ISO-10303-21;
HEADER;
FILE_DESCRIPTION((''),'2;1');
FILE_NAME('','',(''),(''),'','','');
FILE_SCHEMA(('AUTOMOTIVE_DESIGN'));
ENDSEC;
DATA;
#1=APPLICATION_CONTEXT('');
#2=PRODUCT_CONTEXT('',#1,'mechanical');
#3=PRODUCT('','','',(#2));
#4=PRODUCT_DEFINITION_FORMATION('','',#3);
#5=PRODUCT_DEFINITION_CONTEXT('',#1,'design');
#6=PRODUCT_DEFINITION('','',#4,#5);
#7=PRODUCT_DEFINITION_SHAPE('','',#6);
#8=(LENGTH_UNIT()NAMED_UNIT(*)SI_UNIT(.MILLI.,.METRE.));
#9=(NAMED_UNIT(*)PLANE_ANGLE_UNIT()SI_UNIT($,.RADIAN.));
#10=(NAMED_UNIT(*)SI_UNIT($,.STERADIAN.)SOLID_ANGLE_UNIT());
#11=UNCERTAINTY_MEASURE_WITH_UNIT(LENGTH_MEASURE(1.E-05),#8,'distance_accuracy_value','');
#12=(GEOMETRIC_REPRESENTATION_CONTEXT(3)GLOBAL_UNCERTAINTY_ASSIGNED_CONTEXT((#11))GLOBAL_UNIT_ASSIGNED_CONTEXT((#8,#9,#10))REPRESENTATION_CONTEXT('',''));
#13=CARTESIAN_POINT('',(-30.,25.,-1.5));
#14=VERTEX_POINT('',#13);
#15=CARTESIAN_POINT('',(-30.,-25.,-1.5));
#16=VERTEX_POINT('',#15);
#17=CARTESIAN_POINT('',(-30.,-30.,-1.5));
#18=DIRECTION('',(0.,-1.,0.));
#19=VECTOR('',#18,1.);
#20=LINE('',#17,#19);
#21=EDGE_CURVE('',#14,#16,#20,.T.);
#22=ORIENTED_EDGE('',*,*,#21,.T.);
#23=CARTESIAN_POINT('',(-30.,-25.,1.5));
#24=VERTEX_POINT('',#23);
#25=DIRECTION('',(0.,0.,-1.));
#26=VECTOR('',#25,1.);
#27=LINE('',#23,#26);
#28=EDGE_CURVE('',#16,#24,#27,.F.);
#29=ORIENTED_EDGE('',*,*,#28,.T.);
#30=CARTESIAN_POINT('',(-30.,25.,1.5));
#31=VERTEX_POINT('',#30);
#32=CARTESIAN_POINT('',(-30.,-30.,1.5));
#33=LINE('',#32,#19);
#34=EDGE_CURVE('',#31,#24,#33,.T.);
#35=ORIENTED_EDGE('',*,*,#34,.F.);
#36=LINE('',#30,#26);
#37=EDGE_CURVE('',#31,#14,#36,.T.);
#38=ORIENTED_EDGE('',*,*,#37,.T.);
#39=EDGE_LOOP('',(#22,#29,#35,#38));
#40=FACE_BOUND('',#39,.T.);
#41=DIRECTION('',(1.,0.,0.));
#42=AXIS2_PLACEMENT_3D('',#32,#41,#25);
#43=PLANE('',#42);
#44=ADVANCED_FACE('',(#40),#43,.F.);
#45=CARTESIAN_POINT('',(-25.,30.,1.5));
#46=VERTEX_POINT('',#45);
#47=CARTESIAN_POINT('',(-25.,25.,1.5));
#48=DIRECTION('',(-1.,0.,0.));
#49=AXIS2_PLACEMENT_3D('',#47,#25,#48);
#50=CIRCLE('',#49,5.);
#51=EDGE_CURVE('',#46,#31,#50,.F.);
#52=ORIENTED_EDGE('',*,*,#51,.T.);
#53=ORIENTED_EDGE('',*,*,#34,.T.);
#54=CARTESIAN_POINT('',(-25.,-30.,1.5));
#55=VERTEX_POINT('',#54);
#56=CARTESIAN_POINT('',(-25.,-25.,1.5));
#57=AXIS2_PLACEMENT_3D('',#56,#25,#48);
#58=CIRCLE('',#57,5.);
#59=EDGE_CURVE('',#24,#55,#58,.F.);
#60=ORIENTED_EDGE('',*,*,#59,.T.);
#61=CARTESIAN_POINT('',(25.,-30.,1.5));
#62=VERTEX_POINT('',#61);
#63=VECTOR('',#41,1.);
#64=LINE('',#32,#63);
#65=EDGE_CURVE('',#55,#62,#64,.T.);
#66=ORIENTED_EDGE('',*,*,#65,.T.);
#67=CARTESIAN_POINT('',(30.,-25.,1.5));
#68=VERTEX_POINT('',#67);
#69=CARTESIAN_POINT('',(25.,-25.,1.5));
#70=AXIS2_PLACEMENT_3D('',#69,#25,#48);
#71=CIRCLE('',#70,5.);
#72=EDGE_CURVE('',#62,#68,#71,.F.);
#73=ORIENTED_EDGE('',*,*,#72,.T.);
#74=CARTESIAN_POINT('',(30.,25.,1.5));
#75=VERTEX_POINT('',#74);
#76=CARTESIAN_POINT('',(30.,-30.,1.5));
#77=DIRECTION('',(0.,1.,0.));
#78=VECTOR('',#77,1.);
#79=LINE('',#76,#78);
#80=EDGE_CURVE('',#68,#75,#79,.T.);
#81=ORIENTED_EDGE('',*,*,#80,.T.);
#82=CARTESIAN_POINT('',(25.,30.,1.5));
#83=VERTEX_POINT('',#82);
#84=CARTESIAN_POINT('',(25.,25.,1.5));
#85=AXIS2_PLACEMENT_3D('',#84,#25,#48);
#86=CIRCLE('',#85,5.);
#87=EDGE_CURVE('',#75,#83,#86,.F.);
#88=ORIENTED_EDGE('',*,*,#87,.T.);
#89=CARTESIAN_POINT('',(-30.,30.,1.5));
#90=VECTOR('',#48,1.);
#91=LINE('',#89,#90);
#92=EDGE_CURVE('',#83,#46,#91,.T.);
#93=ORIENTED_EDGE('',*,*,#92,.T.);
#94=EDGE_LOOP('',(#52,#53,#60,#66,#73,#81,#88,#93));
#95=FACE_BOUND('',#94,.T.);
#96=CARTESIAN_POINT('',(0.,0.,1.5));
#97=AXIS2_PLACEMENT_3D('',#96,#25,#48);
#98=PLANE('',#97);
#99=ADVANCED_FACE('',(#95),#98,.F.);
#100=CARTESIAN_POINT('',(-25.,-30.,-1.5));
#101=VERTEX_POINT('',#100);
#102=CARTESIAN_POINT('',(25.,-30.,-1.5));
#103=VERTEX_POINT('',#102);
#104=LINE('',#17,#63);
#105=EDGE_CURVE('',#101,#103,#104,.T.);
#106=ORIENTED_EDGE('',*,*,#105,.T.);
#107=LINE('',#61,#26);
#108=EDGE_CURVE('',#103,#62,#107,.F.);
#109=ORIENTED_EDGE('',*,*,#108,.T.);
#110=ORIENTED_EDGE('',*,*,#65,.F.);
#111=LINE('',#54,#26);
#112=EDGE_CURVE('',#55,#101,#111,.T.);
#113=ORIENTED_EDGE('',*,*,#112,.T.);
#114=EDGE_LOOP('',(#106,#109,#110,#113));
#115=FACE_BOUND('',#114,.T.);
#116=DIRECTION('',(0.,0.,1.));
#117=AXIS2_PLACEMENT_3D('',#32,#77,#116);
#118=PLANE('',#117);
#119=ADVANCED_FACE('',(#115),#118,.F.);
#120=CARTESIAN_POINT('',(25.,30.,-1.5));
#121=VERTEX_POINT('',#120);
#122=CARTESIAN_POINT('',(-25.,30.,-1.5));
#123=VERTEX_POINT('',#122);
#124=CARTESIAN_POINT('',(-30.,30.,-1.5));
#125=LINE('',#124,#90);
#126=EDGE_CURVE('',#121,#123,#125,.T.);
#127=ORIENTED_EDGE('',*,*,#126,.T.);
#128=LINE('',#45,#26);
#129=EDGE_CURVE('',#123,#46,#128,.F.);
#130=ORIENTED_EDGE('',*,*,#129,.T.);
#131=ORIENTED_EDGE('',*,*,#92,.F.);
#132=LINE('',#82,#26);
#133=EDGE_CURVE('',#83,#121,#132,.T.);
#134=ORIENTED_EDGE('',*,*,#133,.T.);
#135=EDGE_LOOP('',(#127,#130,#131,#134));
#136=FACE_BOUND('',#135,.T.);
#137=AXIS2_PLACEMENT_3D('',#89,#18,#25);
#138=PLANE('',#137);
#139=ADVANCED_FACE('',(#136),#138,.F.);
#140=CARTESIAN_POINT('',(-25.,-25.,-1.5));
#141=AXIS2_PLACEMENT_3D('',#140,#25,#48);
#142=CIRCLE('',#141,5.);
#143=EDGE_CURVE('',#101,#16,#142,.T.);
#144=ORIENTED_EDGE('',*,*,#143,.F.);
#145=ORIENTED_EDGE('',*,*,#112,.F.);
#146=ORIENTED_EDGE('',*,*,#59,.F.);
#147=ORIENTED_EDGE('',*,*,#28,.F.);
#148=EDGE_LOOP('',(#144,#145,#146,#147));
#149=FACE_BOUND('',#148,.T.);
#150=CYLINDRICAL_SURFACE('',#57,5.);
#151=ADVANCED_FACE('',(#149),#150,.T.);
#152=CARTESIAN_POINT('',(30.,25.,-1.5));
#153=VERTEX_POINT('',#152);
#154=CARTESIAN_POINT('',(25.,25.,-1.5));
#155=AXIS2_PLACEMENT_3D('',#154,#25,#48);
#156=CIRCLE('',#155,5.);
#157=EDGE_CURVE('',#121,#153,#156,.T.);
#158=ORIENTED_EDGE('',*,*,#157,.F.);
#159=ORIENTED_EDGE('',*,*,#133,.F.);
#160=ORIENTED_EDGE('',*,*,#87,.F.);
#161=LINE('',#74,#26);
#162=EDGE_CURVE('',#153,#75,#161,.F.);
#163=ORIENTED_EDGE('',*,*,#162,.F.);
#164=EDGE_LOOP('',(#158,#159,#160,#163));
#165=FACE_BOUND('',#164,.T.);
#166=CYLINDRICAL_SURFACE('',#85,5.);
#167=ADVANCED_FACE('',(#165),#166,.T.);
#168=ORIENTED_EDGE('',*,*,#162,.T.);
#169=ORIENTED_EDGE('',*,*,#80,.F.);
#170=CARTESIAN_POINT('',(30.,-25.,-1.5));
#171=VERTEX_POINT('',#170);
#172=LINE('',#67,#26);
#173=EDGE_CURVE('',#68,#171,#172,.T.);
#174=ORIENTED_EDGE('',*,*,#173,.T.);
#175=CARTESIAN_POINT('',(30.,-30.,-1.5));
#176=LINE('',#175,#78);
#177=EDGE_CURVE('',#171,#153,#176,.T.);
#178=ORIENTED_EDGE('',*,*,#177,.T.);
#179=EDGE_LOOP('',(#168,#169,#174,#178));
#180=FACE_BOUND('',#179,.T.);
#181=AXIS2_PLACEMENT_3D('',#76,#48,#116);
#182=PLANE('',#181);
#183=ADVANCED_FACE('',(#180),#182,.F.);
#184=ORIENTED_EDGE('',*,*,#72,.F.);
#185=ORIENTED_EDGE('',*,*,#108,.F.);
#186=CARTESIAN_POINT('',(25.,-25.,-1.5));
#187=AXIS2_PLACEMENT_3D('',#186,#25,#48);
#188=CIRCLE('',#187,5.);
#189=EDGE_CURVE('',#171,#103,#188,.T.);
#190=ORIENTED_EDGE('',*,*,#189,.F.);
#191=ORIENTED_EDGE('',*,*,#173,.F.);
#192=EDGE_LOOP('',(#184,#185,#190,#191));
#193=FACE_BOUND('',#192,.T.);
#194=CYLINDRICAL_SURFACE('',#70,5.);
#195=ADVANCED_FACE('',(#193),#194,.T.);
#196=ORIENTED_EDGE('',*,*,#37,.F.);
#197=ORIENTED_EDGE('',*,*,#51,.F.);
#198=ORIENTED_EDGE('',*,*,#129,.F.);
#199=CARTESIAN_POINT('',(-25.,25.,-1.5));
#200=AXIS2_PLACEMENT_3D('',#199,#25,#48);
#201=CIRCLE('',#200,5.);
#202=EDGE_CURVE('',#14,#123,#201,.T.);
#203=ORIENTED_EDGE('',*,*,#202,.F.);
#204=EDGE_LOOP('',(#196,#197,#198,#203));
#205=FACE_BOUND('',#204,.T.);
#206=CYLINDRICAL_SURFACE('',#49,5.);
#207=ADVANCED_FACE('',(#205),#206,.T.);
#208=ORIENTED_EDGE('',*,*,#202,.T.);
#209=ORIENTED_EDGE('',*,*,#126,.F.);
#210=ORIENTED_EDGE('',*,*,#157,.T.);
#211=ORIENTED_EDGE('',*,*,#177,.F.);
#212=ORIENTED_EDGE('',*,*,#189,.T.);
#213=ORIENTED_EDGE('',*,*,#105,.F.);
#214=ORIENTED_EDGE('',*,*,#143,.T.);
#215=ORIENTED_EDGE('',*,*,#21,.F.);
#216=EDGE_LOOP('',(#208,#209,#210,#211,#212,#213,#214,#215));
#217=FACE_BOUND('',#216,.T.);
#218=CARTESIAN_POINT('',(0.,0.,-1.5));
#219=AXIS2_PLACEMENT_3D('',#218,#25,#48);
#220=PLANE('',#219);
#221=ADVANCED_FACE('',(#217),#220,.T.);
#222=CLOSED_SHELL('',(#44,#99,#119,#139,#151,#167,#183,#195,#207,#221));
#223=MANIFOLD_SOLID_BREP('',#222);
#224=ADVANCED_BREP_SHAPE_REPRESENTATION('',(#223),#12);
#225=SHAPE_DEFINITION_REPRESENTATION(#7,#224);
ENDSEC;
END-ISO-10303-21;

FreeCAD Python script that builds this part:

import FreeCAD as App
import Part
import Sketcher
from FreeCAD import Vector


def edges_at(feature, points):
    """Names of the edges that pass closest to the given points."""
    edges = feature.Shape.Edges
    near = lambda p: min(range(len(edges)), key=lambda i: edges[i].distToShape(Part.Vertex(*p))[0])
    return sorted({f"Edge{near(p) + 1}" for p in points})

doc = App.newDocument("Part")
body = doc.addObject("PartDesign::Body", "Body")

# Sketch on XY plane
sketch1 = body.newObject("Sketcher::SketchObject", "Sketch")
sketch1.AttachmentSupport = (doc.getObject("XY_Plane"), [""])
sketch1.MapMode = "FlatFace"
sketch1.addGeometry(Part.LineSegment(Vector(-30, 30, 0), Vector(-30, -30, 0)), False)
sketch1.addGeometry(Part.LineSegment(Vector(-30, -30, 0), Vector(30, -30, 0)), False)
sketch1.addGeometry(Part.LineSegment(Vector(30, -30, 0), Vector(30, 30, 0)), False)
sketch1.addGeometry(Part.LineSegment(Vector(30, 30, 0), Vector(-30, 30, 0)), False)
sketch1.addConstraint(Sketcher.Constraint("Coincident", 0, 2, 1, 1))
sketch1.addConstraint(Sketcher.Constraint("Coincident", 1, 2, 2, 1))
sketch1.addConstraint(Sketcher.Constraint("Coincident", 2, 2, 3, 1))
sketch1.addConstraint(Sketcher.Constraint("Coincident", 3, 2, 0, 1))
sketch1.addConstraint(Sketcher.Constraint("Vertical", 0))
sketch1.addConstraint(Sketcher.Constraint("Horizontal", 1))
sketch1.addConstraint(Sketcher.Constraint("Vertical", 2))
sketch1.addConstraint(Sketcher.Constraint("Horizontal", 3))
sketch1.addConstraint(Sketcher.Constraint("Symmetric", 0, 2, 2, 2, -1, 1))
sketch1.addConstraint(Sketcher.Constraint("Equal", 3, 0))
sketch1.addConstraint(Sketcher.Constraint("DistanceX", 1, 1, 1, 2, 60.0))
pad1 = body.newObject("PartDesign::Pad", "Pad")
pad1.Profile = sketch1
pad1.Length = 3
pad1.Midplane = True
doc.recompute()

fillet = body.newObject("PartDesign::Fillet", "Fillet")
fillet.Base = (pad1, edges_at(pad1, [
    (30, -30, 0),
    (-30, -30, 0),
    (-30, 30, 0),
    (30, 30, 0),
]))
fillet.Radius = 5

doc.recompute()
